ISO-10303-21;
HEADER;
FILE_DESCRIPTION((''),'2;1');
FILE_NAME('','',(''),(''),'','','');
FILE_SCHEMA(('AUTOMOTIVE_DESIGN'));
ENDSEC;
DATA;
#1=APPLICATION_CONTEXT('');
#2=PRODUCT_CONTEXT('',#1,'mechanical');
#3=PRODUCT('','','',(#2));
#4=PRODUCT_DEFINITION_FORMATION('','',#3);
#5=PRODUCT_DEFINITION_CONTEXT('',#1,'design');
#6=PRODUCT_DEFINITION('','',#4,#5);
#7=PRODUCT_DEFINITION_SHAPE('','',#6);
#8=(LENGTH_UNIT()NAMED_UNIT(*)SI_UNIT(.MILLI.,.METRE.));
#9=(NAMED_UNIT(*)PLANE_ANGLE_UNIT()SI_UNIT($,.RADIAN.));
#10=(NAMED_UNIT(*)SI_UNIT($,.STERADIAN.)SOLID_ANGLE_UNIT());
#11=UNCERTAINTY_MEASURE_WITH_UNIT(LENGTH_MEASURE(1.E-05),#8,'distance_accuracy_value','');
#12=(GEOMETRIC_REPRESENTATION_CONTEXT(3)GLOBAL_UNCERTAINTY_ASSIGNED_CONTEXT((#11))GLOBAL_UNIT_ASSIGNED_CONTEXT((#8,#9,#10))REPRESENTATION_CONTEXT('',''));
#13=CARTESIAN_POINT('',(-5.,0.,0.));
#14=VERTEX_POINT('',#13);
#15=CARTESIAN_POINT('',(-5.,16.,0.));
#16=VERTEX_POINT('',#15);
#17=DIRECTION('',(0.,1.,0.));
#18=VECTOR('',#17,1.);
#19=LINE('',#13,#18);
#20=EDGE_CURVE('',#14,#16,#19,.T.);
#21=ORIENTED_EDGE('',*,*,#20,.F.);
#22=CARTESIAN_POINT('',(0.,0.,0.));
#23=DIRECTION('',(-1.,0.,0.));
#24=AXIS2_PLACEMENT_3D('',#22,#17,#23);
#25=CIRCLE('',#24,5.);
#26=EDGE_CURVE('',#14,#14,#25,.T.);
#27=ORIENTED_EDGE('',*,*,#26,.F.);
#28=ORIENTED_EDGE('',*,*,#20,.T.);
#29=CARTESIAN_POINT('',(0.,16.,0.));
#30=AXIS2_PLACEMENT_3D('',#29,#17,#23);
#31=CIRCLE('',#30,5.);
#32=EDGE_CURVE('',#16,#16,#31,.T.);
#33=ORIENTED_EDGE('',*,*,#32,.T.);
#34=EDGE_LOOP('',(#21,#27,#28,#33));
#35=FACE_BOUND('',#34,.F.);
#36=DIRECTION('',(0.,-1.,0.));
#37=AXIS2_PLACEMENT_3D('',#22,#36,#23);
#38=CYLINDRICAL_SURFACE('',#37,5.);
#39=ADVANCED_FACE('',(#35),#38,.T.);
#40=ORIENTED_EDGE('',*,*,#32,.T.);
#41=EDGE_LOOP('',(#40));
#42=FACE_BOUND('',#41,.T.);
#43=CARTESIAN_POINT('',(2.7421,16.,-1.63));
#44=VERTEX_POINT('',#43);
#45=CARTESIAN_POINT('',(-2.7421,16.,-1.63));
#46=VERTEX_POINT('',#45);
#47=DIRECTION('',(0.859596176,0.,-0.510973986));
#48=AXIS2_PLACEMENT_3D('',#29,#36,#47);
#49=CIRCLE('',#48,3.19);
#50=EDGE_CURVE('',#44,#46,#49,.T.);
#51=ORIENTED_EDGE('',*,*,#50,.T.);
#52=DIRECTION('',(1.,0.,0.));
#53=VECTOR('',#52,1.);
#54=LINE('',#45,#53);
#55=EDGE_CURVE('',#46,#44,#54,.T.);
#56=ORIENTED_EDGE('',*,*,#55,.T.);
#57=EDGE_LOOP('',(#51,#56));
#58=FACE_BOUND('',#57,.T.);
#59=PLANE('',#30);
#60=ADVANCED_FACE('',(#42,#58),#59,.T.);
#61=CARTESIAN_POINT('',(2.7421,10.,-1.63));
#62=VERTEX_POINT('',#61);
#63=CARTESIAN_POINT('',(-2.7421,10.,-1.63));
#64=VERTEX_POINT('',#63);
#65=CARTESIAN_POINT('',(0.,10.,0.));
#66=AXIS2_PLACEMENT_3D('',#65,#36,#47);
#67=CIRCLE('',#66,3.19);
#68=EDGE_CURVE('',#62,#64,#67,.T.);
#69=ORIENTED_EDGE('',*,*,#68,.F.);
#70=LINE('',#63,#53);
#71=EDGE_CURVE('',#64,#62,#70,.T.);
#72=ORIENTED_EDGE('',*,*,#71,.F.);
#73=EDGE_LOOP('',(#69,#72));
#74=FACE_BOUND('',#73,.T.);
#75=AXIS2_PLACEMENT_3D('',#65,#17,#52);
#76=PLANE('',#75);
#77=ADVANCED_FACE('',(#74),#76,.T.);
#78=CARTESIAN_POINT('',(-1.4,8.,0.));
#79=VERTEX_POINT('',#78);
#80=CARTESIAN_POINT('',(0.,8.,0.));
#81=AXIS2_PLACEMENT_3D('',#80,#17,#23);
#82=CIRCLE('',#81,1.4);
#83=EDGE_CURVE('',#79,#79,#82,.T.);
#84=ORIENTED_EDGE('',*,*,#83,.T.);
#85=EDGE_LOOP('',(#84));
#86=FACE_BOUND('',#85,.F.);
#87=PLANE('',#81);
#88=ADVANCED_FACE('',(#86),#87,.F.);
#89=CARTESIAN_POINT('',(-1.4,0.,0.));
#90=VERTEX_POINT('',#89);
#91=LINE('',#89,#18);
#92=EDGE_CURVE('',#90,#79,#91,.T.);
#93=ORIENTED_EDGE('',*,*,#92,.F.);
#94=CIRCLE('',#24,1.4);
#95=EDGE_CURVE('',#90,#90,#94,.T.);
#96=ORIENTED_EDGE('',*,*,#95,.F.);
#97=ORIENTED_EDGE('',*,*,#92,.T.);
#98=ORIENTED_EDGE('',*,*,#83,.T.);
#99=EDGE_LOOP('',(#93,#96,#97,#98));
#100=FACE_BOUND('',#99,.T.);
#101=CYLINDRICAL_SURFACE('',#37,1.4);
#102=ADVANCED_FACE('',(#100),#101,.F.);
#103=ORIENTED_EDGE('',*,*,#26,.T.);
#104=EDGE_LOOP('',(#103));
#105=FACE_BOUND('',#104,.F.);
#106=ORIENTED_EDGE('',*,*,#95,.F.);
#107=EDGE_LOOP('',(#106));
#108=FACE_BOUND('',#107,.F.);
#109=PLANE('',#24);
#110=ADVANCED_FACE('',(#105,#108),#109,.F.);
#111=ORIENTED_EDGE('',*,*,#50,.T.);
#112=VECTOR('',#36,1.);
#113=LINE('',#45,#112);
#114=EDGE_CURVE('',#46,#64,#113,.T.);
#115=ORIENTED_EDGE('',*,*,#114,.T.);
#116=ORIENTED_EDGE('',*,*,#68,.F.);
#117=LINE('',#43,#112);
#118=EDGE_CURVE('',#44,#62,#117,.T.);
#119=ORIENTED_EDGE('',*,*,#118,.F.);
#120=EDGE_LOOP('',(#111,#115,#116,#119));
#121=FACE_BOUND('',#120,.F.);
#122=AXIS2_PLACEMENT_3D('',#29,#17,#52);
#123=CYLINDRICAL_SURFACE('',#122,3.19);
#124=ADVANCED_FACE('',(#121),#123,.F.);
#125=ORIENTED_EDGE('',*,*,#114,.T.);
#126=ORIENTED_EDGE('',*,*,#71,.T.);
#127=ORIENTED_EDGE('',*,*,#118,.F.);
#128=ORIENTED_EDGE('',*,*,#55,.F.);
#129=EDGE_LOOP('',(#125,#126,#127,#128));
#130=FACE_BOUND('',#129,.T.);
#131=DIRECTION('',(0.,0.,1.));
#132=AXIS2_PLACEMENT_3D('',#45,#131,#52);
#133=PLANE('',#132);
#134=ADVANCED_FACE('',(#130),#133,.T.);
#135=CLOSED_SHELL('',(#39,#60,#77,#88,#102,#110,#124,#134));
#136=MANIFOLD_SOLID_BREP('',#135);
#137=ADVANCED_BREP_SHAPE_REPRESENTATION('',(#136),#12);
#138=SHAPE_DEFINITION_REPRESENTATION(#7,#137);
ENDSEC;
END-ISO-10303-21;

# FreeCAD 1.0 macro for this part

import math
import FreeCAD as App
import Part
import Sketcher

V = App.Vector
Q = App.Units.Quantity

doc = App.newDocument("Part")
body = doc.addObject("PartDesign::Body", "Body")

# Sketch on XZ plane
sketch1 = body.newObject("Sketcher::SketchObject", "Sketch")
sketch1.AttachmentSupport = (doc.getObject("XZ_Plane"), [""])
sketch1.MapMode = "FlatFace"
sketch1.addGeometry(Part.Circle(V(0, 0, 0), V(0, 0, 1), 5), False)
sketch1.addConstraint(Sketcher.Constraint("Coincident", 0, 3, -1, 1))
sketch1.addConstraint(Sketcher.Constraint("Diameter", 0, Q("10 mm")))
pad1 = body.newObject("PartDesign::Pad", "Pad")
pad1.Profile = sketch1
pad1.Length = 16
pad1.Reversed = True

# Sketch on XZ plane
sketch2 = body.newObject("Sketcher::SketchObject", "Sketch001")
sketch2.AttachmentSupport = (doc.getObject("XZ_Plane"), [""])
sketch2.MapMode = "FlatFace"
sketch2.addGeometry(Part.Circle(V(0, 0, 0), V(0, 0, 1), 1.4), False)
sketch2.addConstraint(Sketcher.Constraint("Coincident", 0, 3, -1, 1))
sketch2.addConstraint(Sketcher.Constraint("Diameter", 0, Q("2.8 mm")))
pocket1 = body.newObject("PartDesign::Pocket", "Pocket")
pocket1.Profile = sketch2
pocket1.Length = 8

# Sketch on XZ plane
sketch3 = body.newObject("Sketcher::SketchObject", "Sketch002")
sketch3.AttachmentSupport = (doc.getObject("XZ_Plane"), [""])
sketch3.MapMode = "FlatFace"
sketch3.AttachmentOffset = App.Placement(V(0, 0, -16), App.Rotation())
sketch3.addGeometry(Part.ArcOfCircle(Part.Circle(V(0, 0, 0), V(0, 0, 1), 3.2), math.radians(-31), math.radians(211)), False)
sketch3.addGeometry(Part.LineSegment(V(-2.7, -1.6, 0), V(2.7, -1.6, 0)), False)
sketch3.addConstraint(Sketcher.Constraint("Coincident", 0, 1, 1, 2))
sketch3.addConstraint(Sketcher.Constraint("Coincident", 1, 1, 0, 2))
sketch3.addConstraint(Sketcher.Constraint("Horizontal", 1))
sketch3.addConstraint(Sketcher.Constraint("Coincident", 0, 3, -1, 1))
sketch3.addConstraint(Sketcher.Constraint("Radius", 0, Q("3.19 mm")))
sketch3.addConstraint(Sketcher.Constraint("DistanceY", 0, 1, -1, 1, Q("1.63 mm")))
pocket2 = body.newObject("PartDesign::Pocket", "Pocket001")
pocket2.Profile = sketch3
pocket2.Length = 6
pocket2.Reversed = True

doc.recompute()
